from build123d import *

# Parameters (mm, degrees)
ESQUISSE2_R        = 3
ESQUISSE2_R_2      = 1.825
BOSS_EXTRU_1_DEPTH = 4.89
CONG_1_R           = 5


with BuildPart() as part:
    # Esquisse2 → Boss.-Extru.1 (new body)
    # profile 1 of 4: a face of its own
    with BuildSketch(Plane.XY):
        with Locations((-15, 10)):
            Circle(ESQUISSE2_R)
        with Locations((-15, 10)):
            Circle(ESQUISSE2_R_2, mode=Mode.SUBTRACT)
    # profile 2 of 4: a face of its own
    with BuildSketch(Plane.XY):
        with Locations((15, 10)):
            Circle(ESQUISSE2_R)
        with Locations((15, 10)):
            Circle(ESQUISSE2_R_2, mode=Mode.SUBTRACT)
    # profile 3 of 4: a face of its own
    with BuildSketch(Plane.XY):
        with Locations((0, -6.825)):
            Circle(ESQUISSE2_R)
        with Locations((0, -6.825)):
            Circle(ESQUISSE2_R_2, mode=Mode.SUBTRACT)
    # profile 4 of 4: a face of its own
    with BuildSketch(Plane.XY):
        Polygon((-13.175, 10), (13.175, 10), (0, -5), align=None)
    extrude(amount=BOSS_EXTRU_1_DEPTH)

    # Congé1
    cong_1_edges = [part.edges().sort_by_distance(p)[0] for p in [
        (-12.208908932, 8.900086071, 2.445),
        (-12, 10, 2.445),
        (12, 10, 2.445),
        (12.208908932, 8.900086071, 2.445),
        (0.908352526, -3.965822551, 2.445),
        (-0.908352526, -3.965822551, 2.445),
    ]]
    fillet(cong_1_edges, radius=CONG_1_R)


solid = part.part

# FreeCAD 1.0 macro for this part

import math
import FreeCAD as App
import Part
import Sketcher

V = App.Vector


def edges_at(feature, points):
    """Names of the edges that pass closest to the given points."""
    edges = feature.Shape.Edges
    near = lambda p: min(range(len(edges)), key=lambda i: edges[i].distToShape(Part.Vertex(*p))[0])
    return sorted({f"Edge{near(p) + 1}" for p in points})

doc = App.newDocument("Part")
params = doc.addObject("Spreadsheet::Sheet", "Params")
for row, (alias, value) in enumerate([
    ("sketch1_radius", "3 mm"),
    ("sketch1_diameter", "3.65 mm"),
    ("sketch1_width", "24 mm"),
    ("pad1_length", "4.89 mm"),
    ("fillet_radius", "5 mm"),
], start=1):
    params.set(f"A{row}", alias)
    params.set(f"B{row}", "=" + value)
    params.setAlias(f"B{row}", alias)

body = doc.addObject("PartDesign::Body", "Body")

# Sketch on XY plane
sketch1 = doc.addObject("Sketcher::SketchObject", "Sketch")
body.addObject(sketch1)
sketch1.AttachmentSupport = (doc.XY_Plane, [""])
sketch1.MapMode = "FlatFace"
sketch1.addGeometry([
    Part.ArcOfCircle(Part.Circle(V(-15, 10, 0), V(0, 0, 1), 3), math.radians(0), math.radians(338)),  # 0
    Part.LineSegment(V(-12.2, 8.9, 0), V(-0.9, -4, 0)),  # 1
    Part.ArcOfCircle(Part.Circle(V(0, -6.8, 0), V(0, 0, 1), 3), math.radians(108), math.radians(432)),  # 2
    Part.LineSegment(V(0.9, -4, 0), V(12.2, 8.9, 0)),  # 3
    Part.ArcOfCircle(Part.Circle(V(15, 10, 0), V(0, 0, 1), 3), math.radians(-158), math.radians(180)),  # 4
    Part.LineSegment(V(12, 10, 0), V(-12, 10, 0)),  # 5
    Part.Circle(V(-15, 10, 0), V(0, 0, 1), 1.8),  # 6
    Part.Circle(V(0, -6.8, 0), V(0, 0, 1), 1.8),  # 7
    Part.Circle(V(15, 10, 0), V(0, 0, 1), 1.8),  # 8
], False)
sketch1.addConstraint([
    Sketcher.Constraint("Coincident", 0, 2, 1, 1),
    Sketcher.Constraint("Coincident", 1, 2, 2, 1),
    Sketcher.Constraint("Coincident", 2, 2, 3, 1),
    Sketcher.Constraint("Coincident", 3, 2, 4, 1),
    Sketcher.Constraint("Coincident", 4, 2, 5, 1),
    Sketcher.Constraint("Coincident", 5, 2, 0, 1),
    Sketcher.Constraint("Horizontal", 5),
    Sketcher.Constraint("Coincident", 6, 3, 0, 3),
    Sketcher.Constraint("Coincident", 7, 3, 2, 3),
    Sketcher.Constraint("Coincident", 8, 3, 4, 3),
    Sketcher.Constraint("Equal", 0, 2),
    Sketcher.Constraint("Equal", 2, 4),
    Sketcher.Constraint("Equal", 6, 7),
    Sketcher.Constraint("Equal", 7, 8),
    Sketcher.Constraint("Symmetric", 0, 3, 4, 3, -2),
    Sketcher.Constraint("Symmetric", 1, 2, 2, 2, -2),
    Sketcher.Constraint("Horizontal", 0, 2, 3, 2),
    Sketcher.Constraint("Horizontal", 8, 3, 4, 2),
    Sketcher.Constraint("Radius", 0, 3.0),
    Sketcher.Constraint("Diameter", 6, 3.65),
    Sketcher.Constraint("DistanceX", 5, 2, 5, 1, 24.0),
    Sketcher.Constraint("DistanceY", -1, 1, 0, 3, 10.0),
    Sketcher.Constraint("DistanceY", 2, 3, -1, 1, 6.825),
    Sketcher.Constraint("Distance", 1, 17.124082),
    Sketcher.Constraint("DistanceX", 0, 2, -1, 1, 12.208909),
])
sketch1.setExpression("Constraints[18]", "Params.sketch1_radius")
sketch1.setExpression("Constraints[19]", "Params.sketch1_diameter")
sketch1.setExpression("Constraints[20]", "Params.sketch1_width")
pad1 = doc.addObject("PartDesign::Pad", "Pad")
body.addObject(pad1)
pad1.Profile = sketch1
pad1.setExpression("Length", "Params.pad1_length")
doc.recompute()

fillet = doc.addObject("PartDesign::Fillet", "Fillet")
body.addObject(fillet)
fillet.Base = (pad1, edges_at(pad1, [
    (-12.209, 8.9, 2.445),
    (-12, 10, 2.445),
    (12, 10, 2.445),
    (12.209, 8.9, 2.445),
    (0.908, -3.966, 2.445),
    (-0.908, -3.966, 2.445),
]))
fillet.setExpression("Radius", "Params.fillet_radius")

doc.recompute()
